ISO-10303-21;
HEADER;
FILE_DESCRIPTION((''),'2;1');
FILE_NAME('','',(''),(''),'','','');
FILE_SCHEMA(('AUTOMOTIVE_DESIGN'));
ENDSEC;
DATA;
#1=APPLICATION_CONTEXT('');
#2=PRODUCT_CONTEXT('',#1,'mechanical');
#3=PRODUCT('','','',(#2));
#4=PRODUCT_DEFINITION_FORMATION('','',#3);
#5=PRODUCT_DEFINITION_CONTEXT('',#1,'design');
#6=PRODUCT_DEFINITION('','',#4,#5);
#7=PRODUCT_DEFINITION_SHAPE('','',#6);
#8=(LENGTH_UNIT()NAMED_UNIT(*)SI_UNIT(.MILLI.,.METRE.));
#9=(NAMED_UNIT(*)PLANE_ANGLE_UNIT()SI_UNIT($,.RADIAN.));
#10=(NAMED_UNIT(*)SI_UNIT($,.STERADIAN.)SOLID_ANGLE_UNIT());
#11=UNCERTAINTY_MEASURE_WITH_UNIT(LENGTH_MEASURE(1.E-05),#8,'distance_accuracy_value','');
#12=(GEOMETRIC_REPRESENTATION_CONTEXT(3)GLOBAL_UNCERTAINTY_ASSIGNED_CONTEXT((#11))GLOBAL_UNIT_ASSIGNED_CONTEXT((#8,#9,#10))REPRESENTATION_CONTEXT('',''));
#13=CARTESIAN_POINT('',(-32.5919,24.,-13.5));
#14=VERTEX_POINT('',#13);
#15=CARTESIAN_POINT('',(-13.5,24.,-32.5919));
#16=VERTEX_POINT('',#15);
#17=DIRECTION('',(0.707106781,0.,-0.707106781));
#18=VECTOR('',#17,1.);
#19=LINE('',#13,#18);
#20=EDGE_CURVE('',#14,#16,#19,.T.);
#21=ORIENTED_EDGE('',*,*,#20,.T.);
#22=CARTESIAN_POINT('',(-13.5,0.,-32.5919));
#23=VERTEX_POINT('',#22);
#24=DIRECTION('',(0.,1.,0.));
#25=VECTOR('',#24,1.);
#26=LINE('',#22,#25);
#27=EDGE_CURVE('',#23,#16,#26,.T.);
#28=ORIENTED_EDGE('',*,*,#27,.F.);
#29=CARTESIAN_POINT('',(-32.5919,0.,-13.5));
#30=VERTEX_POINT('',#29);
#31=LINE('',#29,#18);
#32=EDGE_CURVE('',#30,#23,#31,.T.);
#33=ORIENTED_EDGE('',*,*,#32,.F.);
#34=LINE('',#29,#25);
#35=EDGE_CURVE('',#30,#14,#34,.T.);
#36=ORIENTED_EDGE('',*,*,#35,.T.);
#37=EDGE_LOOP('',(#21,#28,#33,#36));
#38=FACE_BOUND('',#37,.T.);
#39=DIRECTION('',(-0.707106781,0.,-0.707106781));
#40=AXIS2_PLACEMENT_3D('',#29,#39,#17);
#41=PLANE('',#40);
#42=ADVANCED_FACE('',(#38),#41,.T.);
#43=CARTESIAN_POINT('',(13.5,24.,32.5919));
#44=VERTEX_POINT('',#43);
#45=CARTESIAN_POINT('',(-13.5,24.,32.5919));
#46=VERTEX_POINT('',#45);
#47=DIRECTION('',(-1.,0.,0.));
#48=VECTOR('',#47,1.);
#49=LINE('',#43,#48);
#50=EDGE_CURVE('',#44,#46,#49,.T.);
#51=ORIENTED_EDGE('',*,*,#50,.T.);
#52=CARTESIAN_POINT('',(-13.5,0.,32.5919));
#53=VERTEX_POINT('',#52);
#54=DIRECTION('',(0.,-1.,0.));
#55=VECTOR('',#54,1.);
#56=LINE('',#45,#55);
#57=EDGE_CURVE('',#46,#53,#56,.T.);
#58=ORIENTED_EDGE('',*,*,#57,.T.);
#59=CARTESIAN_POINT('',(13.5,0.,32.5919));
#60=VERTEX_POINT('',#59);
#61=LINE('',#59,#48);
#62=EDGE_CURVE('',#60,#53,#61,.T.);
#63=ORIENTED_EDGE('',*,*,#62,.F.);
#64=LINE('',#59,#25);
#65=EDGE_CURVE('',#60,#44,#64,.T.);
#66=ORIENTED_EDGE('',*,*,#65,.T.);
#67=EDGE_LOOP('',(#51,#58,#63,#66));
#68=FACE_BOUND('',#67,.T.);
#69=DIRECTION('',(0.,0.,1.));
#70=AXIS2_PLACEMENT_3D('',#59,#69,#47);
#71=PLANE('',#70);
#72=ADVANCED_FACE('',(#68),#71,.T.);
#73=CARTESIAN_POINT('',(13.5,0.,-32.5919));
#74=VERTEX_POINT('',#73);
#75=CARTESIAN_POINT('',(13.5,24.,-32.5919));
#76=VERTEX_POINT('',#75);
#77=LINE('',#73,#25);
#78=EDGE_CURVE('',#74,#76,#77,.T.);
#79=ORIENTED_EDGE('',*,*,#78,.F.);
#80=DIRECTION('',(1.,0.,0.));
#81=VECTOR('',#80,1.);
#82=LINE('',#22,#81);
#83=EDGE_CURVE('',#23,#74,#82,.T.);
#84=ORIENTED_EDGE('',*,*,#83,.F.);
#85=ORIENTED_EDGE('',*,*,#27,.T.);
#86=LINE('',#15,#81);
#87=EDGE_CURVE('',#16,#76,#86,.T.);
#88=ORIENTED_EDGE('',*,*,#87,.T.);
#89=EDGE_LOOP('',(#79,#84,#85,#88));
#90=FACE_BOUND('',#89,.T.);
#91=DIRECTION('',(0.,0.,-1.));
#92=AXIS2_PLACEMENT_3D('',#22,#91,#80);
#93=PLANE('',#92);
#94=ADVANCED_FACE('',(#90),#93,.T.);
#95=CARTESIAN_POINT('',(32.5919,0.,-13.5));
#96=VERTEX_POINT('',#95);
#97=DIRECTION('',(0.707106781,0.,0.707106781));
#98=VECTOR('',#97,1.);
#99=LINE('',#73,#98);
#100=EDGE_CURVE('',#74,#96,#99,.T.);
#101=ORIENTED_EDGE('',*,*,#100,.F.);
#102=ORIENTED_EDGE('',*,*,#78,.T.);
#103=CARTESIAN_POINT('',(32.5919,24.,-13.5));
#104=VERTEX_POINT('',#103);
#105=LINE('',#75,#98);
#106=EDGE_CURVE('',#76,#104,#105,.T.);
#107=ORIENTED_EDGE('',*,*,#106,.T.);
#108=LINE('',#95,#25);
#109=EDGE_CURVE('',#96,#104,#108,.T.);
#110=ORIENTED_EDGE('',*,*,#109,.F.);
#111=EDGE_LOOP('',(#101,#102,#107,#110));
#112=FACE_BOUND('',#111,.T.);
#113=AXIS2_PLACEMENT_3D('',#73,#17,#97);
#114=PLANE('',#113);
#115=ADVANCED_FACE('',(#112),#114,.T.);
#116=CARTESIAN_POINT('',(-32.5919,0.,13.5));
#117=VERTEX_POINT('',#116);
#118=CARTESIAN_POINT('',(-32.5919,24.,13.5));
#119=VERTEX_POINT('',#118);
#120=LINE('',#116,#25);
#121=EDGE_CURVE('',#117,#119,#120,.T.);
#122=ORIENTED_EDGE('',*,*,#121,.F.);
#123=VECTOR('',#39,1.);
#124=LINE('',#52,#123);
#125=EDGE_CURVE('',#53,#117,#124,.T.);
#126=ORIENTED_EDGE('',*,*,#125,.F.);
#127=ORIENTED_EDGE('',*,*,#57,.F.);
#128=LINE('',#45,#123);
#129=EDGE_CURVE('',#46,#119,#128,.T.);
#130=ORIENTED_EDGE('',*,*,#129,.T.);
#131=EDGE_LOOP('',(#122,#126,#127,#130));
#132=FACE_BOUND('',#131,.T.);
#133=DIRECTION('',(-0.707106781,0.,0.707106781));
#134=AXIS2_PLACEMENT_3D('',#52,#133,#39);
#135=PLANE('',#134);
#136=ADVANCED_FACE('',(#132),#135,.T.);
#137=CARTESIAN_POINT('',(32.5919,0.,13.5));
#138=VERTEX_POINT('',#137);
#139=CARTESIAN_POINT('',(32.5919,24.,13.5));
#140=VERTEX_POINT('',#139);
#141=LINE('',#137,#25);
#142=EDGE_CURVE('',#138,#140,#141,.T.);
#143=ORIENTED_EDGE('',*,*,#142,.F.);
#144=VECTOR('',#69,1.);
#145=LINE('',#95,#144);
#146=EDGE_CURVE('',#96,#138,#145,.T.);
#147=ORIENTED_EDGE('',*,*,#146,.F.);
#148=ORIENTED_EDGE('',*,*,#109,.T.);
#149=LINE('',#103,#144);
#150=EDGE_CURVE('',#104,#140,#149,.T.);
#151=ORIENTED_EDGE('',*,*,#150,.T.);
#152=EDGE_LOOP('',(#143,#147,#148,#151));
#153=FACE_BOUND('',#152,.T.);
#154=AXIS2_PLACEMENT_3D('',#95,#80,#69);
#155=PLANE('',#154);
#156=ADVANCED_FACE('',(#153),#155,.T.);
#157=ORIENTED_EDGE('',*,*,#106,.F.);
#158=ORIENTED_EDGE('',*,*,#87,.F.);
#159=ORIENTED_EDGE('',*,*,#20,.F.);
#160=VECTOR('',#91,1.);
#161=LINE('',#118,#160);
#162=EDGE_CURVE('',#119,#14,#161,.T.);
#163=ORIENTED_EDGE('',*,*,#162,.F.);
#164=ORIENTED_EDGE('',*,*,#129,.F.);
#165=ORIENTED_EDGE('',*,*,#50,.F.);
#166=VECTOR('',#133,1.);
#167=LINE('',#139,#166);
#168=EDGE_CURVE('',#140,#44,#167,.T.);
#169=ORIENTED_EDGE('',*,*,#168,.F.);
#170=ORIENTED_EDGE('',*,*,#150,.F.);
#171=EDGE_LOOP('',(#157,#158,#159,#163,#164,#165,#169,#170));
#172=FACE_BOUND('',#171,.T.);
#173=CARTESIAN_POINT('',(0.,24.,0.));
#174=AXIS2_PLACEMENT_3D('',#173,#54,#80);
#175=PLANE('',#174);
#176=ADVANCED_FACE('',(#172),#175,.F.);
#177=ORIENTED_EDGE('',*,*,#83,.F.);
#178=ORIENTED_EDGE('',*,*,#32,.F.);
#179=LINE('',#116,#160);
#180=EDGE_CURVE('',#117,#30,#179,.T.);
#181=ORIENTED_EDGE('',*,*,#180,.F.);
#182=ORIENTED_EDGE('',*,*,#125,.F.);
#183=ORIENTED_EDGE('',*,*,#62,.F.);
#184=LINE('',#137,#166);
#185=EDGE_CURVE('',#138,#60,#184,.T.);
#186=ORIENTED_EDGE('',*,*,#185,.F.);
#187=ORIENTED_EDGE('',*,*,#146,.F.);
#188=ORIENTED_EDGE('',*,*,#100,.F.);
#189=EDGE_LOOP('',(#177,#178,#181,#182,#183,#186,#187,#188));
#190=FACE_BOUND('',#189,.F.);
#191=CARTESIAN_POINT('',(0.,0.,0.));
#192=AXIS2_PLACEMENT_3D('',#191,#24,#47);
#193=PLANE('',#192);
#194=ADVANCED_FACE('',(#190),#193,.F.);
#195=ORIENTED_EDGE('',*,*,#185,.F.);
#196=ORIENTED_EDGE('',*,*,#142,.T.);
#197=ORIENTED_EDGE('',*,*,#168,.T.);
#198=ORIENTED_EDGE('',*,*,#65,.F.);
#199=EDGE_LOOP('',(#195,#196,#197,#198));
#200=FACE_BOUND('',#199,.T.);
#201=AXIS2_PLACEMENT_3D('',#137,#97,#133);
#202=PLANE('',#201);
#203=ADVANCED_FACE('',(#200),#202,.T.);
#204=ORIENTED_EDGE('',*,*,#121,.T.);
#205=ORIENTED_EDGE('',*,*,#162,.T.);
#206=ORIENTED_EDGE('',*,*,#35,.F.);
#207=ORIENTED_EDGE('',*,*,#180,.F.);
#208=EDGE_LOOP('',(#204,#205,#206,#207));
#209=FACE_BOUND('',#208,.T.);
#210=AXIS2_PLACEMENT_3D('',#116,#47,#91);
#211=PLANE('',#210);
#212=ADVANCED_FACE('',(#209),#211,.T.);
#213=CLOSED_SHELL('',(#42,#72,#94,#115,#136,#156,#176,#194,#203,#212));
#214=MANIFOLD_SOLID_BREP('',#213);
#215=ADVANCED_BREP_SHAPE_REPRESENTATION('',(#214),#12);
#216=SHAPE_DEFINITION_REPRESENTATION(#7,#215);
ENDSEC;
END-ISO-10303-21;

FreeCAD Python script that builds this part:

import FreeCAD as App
import Part
import Sketcher
from FreeCAD import Vector
Q = App.Units.Quantity


def add_polygon(sketch, points):
    """Adds a closed chain of lines whose ends are joined by coincident constraints."""
    first, n = sketch.GeometryCount, len(points)
    for a, b in zip(points, points[1:] + points[:1]):
        sketch.addGeometry(Part.LineSegment(App.Vector(*a, 0), App.Vector(*b, 0)), False)
    for i in range(n):
        sketch.addConstraint(Sketcher.Constraint("Coincident", first + i, 2, first + (i + 1) % n, 1))

doc = App.newDocument("Part")
body = doc.addObject("PartDesign::Body", "Body")

sketch1 = body.newObject("Sketcher::SketchObject", "Sketch")
sketch1.AttachmentSupport = (doc.getObject("XZ_Plane"), [""])
sketch1.MapMode = "FlatFace"
add_polygon(sketch1, [(-14, 33), (14, 33), (33, 14), (33, -14), (14, -33), (-14, -33), (-33, -14), (-33, 14)])
sketch1.addConstraint(Sketcher.Constraint("Horizontal", 0))
sketch1.addConstraint(Sketcher.Constraint("Vertical", 2))
sketch1.addConstraint(Sketcher.Constraint("Horizontal", 4))
sketch1.addConstraint(Sketcher.Constraint("Vertical", 6))
sketch1.addConstraint(Sketcher.Constraint("Symmetric", 0, 2, 4, 2, -1, 1))
sketch1.addConstraint(Sketcher.Constraint("Symmetric", 1, 2, 5, 2, -1, 1))
sketch1.addConstraint(Sketcher.Constraint("Perpendicular", 1, 3))
sketch1.addConstraint(Sketcher.Constraint("Perpendicular", 5, 7))
sketch1.addConstraint(Sketcher.Constraint("Horizontal", 2, 2, 5, 2))
sketch1.addConstraint(Sketcher.Constraint("Horizontal", 1, 2, 6, 2))
sketch1.addConstraint(Sketcher.Constraint("Vertical", 0, 2, 3, 2))
sketch1.addConstraint(Sketcher.Constraint("Equal", 4, 2))
sketch1.addConstraint(Sketcher.Constraint("DistanceX", 0, 1, 0, 2, Q("1.063 in")))
sketch1.addConstraint(Sketcher.Constraint("Distance", 1, Q("1.063 in")))
pad1 = body.newObject("PartDesign::Pad", "Pad")
pad1.Profile = sketch1
pad1.Length = 12
pad1.Reversed = True
doc.recompute()

datumplane = body.newObject("PartDesign::Plane", "DatumPlane")
datumplane.AttachmentSupport = (doc.getObject("XZ_Plane"), [""])
datumplane.MapMode = "FlatFace"
datumplane.AttachmentOffset = App.Placement(Vector(0, 0, -12), App.Rotation())
mirrored = body.newObject("PartDesign::Mirrored", "Mirrored")
mirrored.Originals = [pad1]
mirrored.MirrorPlane = (datumplane, [""])
body.Tip = mirrored

doc.recompute()
